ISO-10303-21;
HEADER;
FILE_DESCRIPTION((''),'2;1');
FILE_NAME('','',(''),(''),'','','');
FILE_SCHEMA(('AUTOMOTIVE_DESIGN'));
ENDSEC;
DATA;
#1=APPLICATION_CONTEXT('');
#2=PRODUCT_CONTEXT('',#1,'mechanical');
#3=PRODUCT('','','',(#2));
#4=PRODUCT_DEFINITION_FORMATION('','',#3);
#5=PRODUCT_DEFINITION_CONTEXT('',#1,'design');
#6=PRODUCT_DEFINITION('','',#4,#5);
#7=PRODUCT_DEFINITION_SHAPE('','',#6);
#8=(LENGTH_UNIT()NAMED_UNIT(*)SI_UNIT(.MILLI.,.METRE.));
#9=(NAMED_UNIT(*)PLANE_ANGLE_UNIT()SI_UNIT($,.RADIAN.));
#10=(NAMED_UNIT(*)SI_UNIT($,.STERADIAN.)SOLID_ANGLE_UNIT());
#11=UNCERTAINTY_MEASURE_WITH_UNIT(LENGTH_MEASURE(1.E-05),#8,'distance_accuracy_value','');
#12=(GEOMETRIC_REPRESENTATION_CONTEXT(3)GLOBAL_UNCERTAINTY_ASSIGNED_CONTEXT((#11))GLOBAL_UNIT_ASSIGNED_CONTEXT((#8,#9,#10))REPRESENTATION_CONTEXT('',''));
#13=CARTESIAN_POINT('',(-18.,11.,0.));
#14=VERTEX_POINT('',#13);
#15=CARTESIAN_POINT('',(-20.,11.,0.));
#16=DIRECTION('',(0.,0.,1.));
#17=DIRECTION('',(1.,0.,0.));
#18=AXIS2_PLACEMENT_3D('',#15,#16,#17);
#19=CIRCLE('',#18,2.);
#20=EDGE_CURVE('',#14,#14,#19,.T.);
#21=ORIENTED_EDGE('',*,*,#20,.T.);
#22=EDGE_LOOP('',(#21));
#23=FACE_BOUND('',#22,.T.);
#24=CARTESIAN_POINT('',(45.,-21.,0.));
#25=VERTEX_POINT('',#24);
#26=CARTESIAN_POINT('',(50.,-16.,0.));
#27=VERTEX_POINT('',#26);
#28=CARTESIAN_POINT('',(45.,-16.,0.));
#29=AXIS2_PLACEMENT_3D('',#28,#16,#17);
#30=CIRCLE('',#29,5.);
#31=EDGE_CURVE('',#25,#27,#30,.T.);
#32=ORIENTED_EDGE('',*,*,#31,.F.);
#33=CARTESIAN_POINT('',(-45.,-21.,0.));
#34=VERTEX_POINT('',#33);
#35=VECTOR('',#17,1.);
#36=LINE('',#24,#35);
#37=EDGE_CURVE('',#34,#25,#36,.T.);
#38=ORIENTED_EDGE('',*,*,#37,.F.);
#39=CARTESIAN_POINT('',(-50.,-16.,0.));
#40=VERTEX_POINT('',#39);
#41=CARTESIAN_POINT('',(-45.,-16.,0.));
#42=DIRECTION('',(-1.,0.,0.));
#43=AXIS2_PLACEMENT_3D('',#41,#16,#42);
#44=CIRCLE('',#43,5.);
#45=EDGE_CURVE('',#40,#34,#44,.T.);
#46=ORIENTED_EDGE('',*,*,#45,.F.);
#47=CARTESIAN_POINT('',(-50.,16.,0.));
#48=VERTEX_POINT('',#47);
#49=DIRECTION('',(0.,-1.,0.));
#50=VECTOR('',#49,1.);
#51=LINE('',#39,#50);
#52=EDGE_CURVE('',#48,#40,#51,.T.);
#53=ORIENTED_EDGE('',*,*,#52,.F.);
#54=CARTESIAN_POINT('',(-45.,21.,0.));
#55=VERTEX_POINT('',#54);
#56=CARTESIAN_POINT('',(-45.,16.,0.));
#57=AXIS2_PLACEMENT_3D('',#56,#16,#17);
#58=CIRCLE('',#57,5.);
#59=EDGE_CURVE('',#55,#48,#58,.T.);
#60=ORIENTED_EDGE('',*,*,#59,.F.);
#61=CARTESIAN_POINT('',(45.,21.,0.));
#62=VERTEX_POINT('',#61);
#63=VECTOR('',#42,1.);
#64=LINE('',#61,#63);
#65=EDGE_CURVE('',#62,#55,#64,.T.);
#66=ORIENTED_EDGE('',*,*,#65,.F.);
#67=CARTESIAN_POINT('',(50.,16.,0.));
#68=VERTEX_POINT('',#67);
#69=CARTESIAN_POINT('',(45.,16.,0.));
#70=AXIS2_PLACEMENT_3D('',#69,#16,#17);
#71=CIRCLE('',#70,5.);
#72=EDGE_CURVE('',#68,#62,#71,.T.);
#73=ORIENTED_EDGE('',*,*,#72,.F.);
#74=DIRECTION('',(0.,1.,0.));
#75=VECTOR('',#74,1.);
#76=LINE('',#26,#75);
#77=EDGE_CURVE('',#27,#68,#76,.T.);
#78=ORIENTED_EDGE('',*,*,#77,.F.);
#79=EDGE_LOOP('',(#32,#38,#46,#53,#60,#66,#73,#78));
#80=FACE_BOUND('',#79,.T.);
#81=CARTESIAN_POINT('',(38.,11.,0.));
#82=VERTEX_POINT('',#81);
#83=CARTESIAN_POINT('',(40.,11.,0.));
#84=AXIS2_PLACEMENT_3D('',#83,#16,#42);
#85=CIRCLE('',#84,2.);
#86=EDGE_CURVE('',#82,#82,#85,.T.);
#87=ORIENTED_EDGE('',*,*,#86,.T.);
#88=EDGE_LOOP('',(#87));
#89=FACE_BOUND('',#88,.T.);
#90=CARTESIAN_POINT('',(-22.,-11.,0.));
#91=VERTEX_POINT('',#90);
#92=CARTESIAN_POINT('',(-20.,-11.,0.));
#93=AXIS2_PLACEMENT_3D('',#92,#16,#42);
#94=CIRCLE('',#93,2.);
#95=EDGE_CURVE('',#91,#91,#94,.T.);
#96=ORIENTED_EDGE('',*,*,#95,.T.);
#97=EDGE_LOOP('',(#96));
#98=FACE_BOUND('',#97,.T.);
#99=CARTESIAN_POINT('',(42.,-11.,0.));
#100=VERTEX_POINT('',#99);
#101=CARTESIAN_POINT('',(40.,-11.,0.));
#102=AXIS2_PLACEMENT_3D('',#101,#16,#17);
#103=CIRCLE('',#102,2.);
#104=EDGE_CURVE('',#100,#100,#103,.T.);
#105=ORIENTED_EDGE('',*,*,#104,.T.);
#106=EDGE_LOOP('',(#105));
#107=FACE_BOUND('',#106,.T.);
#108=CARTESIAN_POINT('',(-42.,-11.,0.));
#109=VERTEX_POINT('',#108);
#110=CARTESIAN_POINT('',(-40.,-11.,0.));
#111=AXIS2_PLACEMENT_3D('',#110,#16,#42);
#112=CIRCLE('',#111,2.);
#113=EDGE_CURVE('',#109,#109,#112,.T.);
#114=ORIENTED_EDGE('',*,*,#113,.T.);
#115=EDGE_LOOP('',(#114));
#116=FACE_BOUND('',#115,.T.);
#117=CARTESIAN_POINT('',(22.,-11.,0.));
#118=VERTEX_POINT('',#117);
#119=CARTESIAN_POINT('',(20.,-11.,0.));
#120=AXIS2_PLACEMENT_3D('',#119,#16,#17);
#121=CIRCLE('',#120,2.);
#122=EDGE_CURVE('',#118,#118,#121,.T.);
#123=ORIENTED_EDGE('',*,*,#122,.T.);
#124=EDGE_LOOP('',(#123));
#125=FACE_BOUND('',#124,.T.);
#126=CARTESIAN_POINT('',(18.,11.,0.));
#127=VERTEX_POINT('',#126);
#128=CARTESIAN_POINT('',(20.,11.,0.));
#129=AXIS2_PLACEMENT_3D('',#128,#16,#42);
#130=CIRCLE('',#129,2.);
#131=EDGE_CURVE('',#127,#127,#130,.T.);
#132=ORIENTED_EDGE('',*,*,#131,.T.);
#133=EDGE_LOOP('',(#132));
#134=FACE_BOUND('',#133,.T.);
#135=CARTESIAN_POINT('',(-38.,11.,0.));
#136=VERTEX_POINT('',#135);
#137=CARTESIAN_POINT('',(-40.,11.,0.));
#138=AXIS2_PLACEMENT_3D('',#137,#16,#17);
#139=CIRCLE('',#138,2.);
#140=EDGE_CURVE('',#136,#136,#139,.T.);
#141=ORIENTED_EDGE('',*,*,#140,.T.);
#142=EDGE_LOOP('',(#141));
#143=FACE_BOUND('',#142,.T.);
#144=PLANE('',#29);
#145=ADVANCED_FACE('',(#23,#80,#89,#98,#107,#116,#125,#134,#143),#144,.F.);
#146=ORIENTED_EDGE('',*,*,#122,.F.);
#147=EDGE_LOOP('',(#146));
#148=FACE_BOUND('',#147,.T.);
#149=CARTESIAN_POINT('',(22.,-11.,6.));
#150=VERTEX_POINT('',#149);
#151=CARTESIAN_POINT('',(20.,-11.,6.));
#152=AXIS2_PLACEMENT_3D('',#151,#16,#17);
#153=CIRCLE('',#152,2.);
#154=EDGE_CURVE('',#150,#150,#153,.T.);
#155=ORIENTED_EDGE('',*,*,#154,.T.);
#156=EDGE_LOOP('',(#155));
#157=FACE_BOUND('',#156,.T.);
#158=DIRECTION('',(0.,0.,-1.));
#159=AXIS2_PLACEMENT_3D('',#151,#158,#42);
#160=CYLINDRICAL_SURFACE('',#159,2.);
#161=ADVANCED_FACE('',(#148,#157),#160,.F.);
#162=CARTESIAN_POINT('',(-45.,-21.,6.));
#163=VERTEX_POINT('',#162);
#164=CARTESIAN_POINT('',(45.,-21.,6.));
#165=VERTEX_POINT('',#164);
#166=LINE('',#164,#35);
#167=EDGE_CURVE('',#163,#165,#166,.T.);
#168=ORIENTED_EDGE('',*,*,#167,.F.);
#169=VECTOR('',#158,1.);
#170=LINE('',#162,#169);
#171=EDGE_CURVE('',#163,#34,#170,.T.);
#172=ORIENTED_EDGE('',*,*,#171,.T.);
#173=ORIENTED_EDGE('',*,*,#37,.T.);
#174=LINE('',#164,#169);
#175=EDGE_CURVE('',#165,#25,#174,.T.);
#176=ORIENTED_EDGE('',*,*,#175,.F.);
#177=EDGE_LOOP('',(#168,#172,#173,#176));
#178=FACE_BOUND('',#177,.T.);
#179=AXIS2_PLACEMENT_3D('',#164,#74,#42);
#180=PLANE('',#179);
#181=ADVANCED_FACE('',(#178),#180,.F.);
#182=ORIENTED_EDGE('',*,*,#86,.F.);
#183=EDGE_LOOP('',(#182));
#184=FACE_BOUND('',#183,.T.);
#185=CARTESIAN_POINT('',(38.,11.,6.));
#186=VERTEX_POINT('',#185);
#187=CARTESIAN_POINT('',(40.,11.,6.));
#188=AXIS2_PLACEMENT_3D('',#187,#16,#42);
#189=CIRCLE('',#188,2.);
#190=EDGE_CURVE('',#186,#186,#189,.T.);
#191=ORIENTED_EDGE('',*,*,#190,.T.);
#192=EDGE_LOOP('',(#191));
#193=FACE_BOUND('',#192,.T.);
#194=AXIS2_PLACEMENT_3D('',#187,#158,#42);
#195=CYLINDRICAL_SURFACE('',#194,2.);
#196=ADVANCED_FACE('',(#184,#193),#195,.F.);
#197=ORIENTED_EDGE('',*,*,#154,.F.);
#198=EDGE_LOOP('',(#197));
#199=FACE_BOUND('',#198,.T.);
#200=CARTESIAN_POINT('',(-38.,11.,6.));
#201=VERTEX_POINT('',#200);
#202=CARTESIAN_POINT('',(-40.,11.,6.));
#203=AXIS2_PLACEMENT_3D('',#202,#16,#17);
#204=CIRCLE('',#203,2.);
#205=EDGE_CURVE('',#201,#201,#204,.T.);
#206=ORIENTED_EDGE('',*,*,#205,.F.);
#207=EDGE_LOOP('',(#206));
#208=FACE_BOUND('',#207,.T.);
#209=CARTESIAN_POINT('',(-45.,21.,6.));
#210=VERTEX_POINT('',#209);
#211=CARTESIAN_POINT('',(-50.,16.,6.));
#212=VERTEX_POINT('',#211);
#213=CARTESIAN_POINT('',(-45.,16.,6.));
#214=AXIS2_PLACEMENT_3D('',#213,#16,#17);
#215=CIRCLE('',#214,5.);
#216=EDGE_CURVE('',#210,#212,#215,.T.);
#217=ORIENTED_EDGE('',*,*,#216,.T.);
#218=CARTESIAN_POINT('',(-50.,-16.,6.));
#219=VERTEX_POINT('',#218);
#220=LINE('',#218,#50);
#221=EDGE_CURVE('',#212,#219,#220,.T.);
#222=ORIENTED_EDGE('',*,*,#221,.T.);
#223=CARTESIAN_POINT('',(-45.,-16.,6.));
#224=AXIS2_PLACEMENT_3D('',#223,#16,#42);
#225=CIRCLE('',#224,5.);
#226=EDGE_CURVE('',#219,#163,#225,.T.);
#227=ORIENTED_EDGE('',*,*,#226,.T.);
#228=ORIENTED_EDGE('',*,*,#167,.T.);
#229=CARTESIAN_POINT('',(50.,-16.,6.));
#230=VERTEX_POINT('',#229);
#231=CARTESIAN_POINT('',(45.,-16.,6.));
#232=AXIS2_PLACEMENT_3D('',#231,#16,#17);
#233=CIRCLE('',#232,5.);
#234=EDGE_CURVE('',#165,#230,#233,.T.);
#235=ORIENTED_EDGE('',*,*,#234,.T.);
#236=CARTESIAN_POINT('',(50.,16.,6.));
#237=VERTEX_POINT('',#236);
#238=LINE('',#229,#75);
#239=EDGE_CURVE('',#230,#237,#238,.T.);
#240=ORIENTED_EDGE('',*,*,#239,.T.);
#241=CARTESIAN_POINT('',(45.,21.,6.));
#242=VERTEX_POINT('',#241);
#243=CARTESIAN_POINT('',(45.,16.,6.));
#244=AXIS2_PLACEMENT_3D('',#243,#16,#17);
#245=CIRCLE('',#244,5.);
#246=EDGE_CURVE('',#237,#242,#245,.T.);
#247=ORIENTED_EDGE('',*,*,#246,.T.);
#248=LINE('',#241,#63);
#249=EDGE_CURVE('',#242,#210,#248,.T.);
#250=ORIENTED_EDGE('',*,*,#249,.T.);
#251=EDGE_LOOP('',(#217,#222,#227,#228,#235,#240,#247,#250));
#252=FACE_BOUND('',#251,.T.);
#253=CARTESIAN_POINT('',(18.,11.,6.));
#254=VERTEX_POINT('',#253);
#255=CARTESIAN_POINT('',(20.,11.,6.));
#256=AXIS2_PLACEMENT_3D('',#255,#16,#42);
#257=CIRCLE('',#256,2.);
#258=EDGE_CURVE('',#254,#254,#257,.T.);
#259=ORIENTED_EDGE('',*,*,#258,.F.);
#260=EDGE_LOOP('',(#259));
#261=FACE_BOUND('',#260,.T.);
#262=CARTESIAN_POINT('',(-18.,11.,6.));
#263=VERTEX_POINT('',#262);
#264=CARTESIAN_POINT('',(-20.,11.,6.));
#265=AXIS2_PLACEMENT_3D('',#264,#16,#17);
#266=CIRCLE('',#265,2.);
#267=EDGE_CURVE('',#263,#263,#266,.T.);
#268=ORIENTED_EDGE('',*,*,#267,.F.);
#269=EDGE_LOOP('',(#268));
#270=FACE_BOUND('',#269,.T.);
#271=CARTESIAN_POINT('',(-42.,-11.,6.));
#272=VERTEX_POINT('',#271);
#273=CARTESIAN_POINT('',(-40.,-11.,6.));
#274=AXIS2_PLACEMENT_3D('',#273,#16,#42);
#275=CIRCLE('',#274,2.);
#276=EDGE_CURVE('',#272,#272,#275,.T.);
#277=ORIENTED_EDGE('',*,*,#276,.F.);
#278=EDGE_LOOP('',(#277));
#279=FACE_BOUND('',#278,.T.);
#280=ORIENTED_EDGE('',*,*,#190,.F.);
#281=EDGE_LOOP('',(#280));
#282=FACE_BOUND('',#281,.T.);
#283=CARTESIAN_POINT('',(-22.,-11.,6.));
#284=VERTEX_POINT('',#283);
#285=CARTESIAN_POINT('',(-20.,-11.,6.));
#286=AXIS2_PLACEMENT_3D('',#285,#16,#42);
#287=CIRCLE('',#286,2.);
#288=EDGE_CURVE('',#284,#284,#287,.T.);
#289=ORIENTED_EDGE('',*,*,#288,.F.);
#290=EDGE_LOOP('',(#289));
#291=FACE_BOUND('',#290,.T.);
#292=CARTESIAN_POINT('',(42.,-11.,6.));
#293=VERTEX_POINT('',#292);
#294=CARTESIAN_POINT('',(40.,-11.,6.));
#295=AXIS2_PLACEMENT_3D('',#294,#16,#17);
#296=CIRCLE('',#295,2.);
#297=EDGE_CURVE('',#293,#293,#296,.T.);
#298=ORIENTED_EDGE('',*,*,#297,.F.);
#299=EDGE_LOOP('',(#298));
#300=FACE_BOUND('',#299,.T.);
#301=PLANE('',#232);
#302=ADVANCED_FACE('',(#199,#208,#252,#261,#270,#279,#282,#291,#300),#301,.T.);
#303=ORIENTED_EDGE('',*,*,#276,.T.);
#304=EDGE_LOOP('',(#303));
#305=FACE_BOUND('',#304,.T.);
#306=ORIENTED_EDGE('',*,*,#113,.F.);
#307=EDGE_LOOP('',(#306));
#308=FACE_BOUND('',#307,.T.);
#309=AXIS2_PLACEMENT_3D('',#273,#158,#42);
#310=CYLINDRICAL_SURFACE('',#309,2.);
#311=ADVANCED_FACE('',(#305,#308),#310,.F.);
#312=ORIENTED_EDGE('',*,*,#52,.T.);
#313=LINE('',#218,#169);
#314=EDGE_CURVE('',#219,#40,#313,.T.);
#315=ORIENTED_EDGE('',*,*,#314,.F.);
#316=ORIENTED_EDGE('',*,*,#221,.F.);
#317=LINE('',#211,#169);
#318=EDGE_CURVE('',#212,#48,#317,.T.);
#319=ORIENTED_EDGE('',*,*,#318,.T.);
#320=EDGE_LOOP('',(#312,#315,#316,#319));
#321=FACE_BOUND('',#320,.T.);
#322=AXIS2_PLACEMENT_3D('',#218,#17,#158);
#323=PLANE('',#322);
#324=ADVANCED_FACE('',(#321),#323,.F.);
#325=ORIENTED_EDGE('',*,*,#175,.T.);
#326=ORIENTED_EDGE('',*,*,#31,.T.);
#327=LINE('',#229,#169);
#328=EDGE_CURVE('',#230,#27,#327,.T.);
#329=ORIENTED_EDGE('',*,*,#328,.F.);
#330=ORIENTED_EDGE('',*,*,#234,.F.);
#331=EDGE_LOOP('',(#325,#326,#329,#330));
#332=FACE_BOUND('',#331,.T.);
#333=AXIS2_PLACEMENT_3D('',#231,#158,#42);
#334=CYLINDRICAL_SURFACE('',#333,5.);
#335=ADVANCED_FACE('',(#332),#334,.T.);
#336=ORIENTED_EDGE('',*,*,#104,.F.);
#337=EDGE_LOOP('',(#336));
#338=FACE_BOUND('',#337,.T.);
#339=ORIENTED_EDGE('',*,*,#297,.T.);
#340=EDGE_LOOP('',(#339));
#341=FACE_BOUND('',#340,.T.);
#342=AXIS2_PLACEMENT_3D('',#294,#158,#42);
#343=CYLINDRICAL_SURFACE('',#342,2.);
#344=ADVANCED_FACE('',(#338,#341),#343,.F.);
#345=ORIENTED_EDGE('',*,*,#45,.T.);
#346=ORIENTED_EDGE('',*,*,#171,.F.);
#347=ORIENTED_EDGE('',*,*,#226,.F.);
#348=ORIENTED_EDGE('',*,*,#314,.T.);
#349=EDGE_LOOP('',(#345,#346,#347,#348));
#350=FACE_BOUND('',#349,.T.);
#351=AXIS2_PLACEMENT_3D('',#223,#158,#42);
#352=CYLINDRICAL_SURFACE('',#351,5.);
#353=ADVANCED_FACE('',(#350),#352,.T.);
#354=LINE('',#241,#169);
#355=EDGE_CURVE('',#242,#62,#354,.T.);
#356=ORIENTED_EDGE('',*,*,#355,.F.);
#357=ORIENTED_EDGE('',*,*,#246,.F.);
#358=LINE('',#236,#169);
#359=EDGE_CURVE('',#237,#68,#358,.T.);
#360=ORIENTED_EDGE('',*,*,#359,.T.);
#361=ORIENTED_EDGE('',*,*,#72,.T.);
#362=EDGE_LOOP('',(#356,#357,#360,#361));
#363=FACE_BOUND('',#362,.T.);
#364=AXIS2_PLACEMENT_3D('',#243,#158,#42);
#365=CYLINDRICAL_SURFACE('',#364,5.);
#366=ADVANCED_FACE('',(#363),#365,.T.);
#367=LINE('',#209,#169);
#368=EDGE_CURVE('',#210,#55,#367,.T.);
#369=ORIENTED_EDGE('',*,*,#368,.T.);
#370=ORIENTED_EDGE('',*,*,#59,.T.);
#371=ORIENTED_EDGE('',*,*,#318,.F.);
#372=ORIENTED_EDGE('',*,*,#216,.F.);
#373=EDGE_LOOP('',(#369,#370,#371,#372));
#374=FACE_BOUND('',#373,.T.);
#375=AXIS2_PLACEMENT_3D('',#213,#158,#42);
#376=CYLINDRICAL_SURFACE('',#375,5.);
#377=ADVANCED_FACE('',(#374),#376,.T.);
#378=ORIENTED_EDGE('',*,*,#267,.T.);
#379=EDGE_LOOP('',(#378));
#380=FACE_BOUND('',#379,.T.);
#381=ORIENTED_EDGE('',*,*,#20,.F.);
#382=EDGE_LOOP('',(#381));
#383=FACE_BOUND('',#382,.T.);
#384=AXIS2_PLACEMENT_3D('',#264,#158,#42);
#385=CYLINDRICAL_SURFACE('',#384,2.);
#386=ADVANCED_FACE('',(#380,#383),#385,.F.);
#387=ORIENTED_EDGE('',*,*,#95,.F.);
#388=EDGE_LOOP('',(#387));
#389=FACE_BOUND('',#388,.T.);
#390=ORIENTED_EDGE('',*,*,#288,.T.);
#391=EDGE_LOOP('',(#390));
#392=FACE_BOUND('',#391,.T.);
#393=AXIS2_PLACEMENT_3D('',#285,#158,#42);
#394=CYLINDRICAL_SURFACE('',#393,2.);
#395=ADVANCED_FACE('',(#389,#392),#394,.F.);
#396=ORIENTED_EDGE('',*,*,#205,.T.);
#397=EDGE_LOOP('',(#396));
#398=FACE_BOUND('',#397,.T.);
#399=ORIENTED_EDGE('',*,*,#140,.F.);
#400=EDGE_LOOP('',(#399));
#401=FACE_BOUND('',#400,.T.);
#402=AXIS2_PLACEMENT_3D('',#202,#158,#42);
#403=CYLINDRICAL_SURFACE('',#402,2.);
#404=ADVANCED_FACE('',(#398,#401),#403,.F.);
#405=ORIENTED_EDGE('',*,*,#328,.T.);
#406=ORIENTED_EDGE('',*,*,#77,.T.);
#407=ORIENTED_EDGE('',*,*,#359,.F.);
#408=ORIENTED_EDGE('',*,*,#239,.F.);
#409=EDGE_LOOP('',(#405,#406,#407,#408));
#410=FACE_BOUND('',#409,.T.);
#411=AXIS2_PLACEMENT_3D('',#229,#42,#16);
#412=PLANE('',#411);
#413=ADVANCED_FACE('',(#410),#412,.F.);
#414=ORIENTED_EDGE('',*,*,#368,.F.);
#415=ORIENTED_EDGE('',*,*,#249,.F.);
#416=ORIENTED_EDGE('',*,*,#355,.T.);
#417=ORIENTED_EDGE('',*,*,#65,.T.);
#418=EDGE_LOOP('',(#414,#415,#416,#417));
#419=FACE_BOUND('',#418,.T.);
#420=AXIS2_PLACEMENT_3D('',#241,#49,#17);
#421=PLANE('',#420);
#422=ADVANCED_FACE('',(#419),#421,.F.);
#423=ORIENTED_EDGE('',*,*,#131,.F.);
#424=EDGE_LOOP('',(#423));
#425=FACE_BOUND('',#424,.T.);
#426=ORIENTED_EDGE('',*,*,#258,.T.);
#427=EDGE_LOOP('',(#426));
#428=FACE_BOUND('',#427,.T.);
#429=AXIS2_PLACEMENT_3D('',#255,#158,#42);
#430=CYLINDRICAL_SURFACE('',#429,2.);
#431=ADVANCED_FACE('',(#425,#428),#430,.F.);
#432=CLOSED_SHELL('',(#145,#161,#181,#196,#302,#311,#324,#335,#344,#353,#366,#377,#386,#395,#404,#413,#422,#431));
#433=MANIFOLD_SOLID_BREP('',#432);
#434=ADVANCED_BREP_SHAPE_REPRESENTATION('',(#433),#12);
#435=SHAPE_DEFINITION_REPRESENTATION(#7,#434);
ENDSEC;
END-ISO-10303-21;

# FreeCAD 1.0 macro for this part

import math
import FreeCAD as App
import Part
import Sketcher

V = App.Vector

doc = App.newDocument("Part")
params = doc.addObject("Spreadsheet::Sheet", "Params")
for row, (alias, value) in enumerate([
    ("sketch1_diameter", "4 mm"),
    ("sketch1_radius", "5 mm"),
    ("sketch1_width", "90 mm"),
    ("sketch1_height", "32 mm"),
    ("pad1_length", "6 mm"),
], start=1):
    params.set(f"A{row}", alias)
    params.set(f"B{row}", "=" + value)
    params.setAlias(f"B{row}", alias)

body = doc.addObject("PartDesign::Body", "Body")

# Sketch on XY plane
sketch1 = doc.addObject("Sketcher::SketchObject", "Sketch")
body.addObject(sketch1)
sketch1.AttachmentSupport = (doc.XY_Plane, [""])
sketch1.MapMode = "FlatFace"
sketch1.addGeometry([
    Part.LineSegment(V(-45, -21, 0), V(45, -21, 0)),  # 0
    Part.ArcOfCircle(Part.Circle(V(45, -16, 0), V(0, 0, 1), 5), math.radians(-90), math.radians(0)),  # 1
    Part.LineSegment(V(50, -16, 0), V(50, 16, 0)),  # 2
    Part.ArcOfCircle(Part.Circle(V(45, 16, 0), V(0, 0, 1), 5), math.radians(0), math.radians(90)),  # 3
    Part.LineSegment(V(45, 21, 0), V(-45, 21, 0)),  # 4
    Part.ArcOfCircle(Part.Circle(V(-45, 16, 0), V(0, 0, 1), 5), math.radians(90), math.radians(180)),  # 5
    Part.LineSegment(V(-50, 16, 0), V(-50, -16, 0)),  # 6
    Part.ArcOfCircle(Part.Circle(V(-45, -16, 0), V(0, 0, 1), 5), math.radians(180), math.radians(270)),  # 7
    Part.Circle(V(40, -11, 0), V(0, 0, 1), 2),  # 8
    Part.Circle(V(20, -11, 0), V(0, 0, 1), 2),  # 9
    Part.Circle(V(-20, -11, 0), V(0, 0, 1), 2),  # 10
    Part.Circle(V(-40, -11, 0), V(0, 0, 1), 2),  # 11
    Part.Circle(V(40, 11, 0), V(0, 0, 1), 2),  # 12
    Part.Circle(V(20, 11, 0), V(0, 0, 1), 2),  # 13
    Part.Circle(V(-20, 11, 0), V(0, 0, 1), 2),  # 14
    Part.Circle(V(-40, 11, 0), V(0, 0, 1), 2),  # 15
], False)
sketch1.addConstraint([
    Sketcher.Constraint("Tangent", 0, 2, 1, 1),
    Sketcher.Constraint("Tangent", 1, 2, 2, 1),
    Sketcher.Constraint("Tangent", 2, 2, 3, 1),
    Sketcher.Constraint("Tangent", 3, 2, 4, 1),
    Sketcher.Constraint("Tangent", 4, 2, 5, 1),
    Sketcher.Constraint("Tangent", 5, 2, 6, 1),
    Sketcher.Constraint("Tangent", 6, 2, 7, 1),
    Sketcher.Constraint("Tangent", 7, 2, 0, 1),
    Sketcher.Constraint("Horizontal", 0),
    Sketcher.Constraint("Vertical", 2),
    Sketcher.Constraint("Horizontal", 4),
    Sketcher.Constraint("Vertical", 6),
    Sketcher.Constraint("Equal", 1, 3),
    Sketcher.Constraint("Equal", 3, 5),
    Sketcher.Constraint("Equal", 5, 7),
    Sketcher.Constraint("Equal", 8, 9),
    Sketcher.Constraint("Equal", 9, 10),
    Sketcher.Constraint("Equal", 10, 11),
    Sketcher.Constraint("Equal", 11, 12),
    Sketcher.Constraint("Equal", 12, 13),
    Sketcher.Constraint("Equal", 13, 14),
    Sketcher.Constraint("Equal", 14, 15),
    Sketcher.Constraint("Symmetric", 1, 3, 5, 3, -1, 1),
    Sketcher.Constraint("Symmetric", 11, 3, 12, 3, -1, 1),
    Sketcher.Constraint("Symmetric", 10, 3, 13, 3, -1, 1),
    Sketcher.Constraint("Symmetric", 9, 3, 14, 3, -1, 1),
    Sketcher.Constraint("Symmetric", 8, 3, 15, 3, -1, 1),
    Sketcher.Constraint("Symmetric", 9, 3, 10, 3, -2),
    Sketcher.Constraint("Symmetric", 8, 3, 11, 3, -2),
    Sketcher.Constraint("Horizontal", 8, 3, 9, 3),
    Sketcher.Constraint("Diameter", 8, 4.0),
    Sketcher.Constraint("Radius", 1, 5.0),
    Sketcher.Constraint("DistanceX", 0, 1, 0, 2, 90.0),
    Sketcher.Constraint("DistanceY", 2, 1, 2, 2, 32.0),
    Sketcher.Constraint("DistanceX", -1, 1, 8, 3, 40.0),
    Sketcher.Constraint("DistanceY", 8, 3, -1, 1, 11.0),
    Sketcher.Constraint("DistanceX", -1, 1, 9, 3, 20.0),
])
sketch1.setExpression("Constraints[30]", "Params.sketch1_diameter")
sketch1.setExpression("Constraints[31]", "Params.sketch1_radius")
sketch1.setExpression("Constraints[32]", "Params.sketch1_width")
sketch1.setExpression("Constraints[33]", "Params.sketch1_height")
pad1 = doc.addObject("PartDesign::Pad", "Pad")
body.addObject(pad1)
pad1.Profile = sketch1
pad1.setExpression("Length", "Params.pad1_length")

doc.recompute()
